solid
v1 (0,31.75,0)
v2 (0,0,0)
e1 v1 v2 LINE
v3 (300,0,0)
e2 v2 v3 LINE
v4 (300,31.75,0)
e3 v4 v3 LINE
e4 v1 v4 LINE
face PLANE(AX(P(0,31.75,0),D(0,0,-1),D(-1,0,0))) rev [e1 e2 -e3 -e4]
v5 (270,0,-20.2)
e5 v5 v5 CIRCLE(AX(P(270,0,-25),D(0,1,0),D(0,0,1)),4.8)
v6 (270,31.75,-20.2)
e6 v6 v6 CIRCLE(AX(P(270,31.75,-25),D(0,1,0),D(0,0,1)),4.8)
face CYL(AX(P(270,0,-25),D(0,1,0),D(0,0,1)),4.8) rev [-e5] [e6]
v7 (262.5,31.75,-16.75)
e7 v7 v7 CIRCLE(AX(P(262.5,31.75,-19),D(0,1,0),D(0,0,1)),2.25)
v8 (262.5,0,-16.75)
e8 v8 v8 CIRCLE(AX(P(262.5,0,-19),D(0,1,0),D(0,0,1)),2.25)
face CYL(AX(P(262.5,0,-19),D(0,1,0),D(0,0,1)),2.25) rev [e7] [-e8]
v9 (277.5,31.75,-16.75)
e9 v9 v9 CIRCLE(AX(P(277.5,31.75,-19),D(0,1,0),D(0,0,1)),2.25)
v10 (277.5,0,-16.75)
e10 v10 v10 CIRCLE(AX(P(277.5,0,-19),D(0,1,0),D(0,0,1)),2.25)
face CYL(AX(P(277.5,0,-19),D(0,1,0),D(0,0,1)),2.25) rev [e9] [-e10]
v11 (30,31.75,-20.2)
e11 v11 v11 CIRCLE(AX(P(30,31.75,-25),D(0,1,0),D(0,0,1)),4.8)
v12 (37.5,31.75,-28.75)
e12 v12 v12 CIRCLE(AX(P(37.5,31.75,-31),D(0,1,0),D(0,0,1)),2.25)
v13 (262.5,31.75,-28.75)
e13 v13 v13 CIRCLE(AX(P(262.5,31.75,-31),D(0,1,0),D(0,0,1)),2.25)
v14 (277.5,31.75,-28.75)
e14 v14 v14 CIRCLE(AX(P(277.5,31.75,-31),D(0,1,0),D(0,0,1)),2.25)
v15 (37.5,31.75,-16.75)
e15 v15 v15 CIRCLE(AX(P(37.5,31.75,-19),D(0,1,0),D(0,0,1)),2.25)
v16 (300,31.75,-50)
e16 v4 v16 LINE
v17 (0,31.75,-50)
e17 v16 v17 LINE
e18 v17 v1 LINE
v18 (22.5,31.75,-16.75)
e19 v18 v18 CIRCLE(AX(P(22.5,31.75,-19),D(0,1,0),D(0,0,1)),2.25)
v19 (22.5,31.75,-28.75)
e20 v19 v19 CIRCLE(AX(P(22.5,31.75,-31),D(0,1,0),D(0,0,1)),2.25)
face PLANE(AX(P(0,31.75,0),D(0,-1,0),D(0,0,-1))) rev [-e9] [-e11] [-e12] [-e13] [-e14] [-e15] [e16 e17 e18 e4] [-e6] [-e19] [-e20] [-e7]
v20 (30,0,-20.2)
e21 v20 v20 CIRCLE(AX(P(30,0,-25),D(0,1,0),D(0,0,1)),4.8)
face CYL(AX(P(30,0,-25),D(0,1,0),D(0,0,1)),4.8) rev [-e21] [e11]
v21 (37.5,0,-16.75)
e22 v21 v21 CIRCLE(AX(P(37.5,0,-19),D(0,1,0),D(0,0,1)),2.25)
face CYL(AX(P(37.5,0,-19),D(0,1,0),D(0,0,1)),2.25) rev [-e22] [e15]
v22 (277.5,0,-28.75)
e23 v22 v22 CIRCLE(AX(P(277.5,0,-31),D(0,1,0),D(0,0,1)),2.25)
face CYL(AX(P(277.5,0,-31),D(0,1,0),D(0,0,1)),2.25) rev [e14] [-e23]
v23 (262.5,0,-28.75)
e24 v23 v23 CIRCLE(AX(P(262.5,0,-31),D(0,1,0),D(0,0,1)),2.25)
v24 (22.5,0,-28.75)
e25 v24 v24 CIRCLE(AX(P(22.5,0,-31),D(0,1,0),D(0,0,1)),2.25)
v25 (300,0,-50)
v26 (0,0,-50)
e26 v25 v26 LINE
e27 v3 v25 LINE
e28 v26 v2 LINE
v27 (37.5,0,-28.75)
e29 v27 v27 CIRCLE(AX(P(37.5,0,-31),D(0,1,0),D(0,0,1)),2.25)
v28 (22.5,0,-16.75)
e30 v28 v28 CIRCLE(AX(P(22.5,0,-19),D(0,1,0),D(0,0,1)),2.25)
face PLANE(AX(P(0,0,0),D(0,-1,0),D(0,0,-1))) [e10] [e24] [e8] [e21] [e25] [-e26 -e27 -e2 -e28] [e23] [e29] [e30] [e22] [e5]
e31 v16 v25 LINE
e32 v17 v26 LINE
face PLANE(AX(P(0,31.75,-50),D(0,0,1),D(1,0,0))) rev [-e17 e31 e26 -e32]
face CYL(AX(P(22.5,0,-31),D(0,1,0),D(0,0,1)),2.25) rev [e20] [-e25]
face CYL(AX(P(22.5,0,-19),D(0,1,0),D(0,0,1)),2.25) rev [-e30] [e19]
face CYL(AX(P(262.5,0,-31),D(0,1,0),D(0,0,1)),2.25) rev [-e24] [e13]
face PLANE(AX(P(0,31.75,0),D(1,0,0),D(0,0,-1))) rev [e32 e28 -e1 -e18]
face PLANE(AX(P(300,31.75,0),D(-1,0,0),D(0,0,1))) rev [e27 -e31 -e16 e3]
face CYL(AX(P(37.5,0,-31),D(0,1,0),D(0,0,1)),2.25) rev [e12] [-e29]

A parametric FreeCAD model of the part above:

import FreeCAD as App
import Part
import Sketcher

V = App.Vector


def add_polygon(sketch, points):
    """Adds a closed chain of lines whose ends are joined by coincident constraints."""
    first, n = sketch.GeometryCount, len(points)
    for a, b in zip(points, points[1:] + points[:1]):
        sketch.addGeometry(Part.LineSegment(App.Vector(*a, 0), App.Vector(*b, 0)), False)
    for i in range(n):
        sketch.addConstraint(Sketcher.Constraint("Coincident", first + i, 2, first + (i + 1) % n, 1))

doc = App.newDocument("Part")
body = doc.addObject("PartDesign::Body", "Body")

# Sketch on XZ plane
sketch1 = body.newObject("Sketcher::SketchObject", "Sketch")
sketch1.AttachmentSupport = (doc.getObject("XZ_Plane"), [""])
sketch1.MapMode = "FlatFace"
add_polygon(sketch1, [(0, -50), (0, 0), (300, 0), (300, -50)])  # lines 0-3
sketch1.addConstraint([
    Sketcher.Constraint("Vertical", 0),
    Sketcher.Constraint("Horizontal", 1),
    Sketcher.Constraint("Vertical", 2),
    Sketcher.Constraint("Horizontal", 3),
    Sketcher.Constraint("Coincident", 0, 2, -1, 1),
    Sketcher.Constraint("DistanceX", 1, 1, 1, 2, 300.0),
    Sketcher.Constraint("DistanceY", 0, 1, 0, 2, 50.0),
])
pad1 = body.newObject("PartDesign::Pad", "Pad")
pad1.Profile = sketch1
pad1.Length = 31.75
pad1.Reversed = True

# Sketch on XZ plane
sketch2 = body.newObject("Sketcher::SketchObject", "Sketch001")
sketch2.AttachmentSupport = (doc.getObject("XZ_Plane"), [""])
sketch2.MapMode = "FlatFace"
sketch2.AttachmentOffset = App.Placement(V(0, 0, -31.75), App.Rotation())
sketch2.addGeometry([
    Part.Circle(V(30, -25, 0), V(0, 0, 1), 4.8),
    Part.Circle(V(270, -25, 0), V(0, 0, 1), 4.8),
    Part.Circle(V(22.5, -19, 0), V(0, 0, 1), 2.2),
    Part.Circle(V(277.5, -19, 0), V(0, 0, 1), 2.2),
], False)
sketch2.addConstraint([
    Sketcher.Constraint("Equal", 0, 1),
    Sketcher.Constraint("Equal", 2, 3),
    Sketcher.Constraint("Horizontal", 0, 3, 1, 3),
    Sketcher.Constraint("Horizontal", 2, 3, 3, 3),
    Sketcher.Constraint("Diameter", 0, 9.6),
    Sketcher.Constraint("Diameter", 2, 4.5),
    Sketcher.Constraint("DistanceX", -1, 1, 0, 3, 30.0),
    Sketcher.Constraint("DistanceY", 0, 3, -1, 1, 25.0),
    Sketcher.Constraint("DistanceX", -1, 1, 1, 3, 270.0),
    Sketcher.Constraint("DistanceY", 2, 3, -1, 1, 19.0),
    Sketcher.Constraint("DistanceX", 2, 3, 3, 3, 255.0),
    Sketcher.Constraint("DistanceX", -1, 1, 2, 3, 22.5),
])
pocket1 = body.newObject("PartDesign::Pocket", "Pocket")
pocket1.Profile = sketch2
pocket1.Length = 31.75
pocket1.Reversed = True

# Sketch on XZ plane
sketch3 = body.newObject("Sketcher::SketchObject", "Sketch002")
sketch3.AttachmentSupport = (doc.getObject("XZ_Plane"), [""])
sketch3.MapMode = "FlatFace"
sketch3.AttachmentOffset = App.Placement(V(0, 0, -31.75), App.Rotation())
sketch3.addGeometry([
    Part.Circle(V(37.5, -31, 0), V(0, 0, 1), 2.2),  # 0
    Part.Circle(V(37.5, -19, 0), V(0, 0, 1), 2.2),  # 1
    Part.Circle(V(22.5, -31, 0), V(0, 0, 1), 2.2),  # 2
    Part.Circle(V(277.5, -31, 0), V(0, 0, 1), 2.2),  # 3
    Part.Circle(V(262.5, -19, 0), V(0, 0, 1), 2.2),  # 4
    Part.Circle(V(262.5, -31, 0), V(0, 0, 1), 2.2),  # 5
], False)
sketch3.addConstraint([
    Sketcher.Constraint("Equal", 0, 1),
    Sketcher.Constraint("Equal", 1, 2),
    Sketcher.Constraint("Equal", 2, 3),
    Sketcher.Constraint("Equal", 3, 4),
    Sketcher.Constraint("Equal", 4, 5),
    Sketcher.Constraint("Horizontal", 0, 3, 2, 3),
    Sketcher.Constraint("Horizontal", 2, 3, 3, 3),
    Sketcher.Constraint("Horizontal", 1, 3, 4, 3),
    Sketcher.Constraint("Horizontal", 3, 3, 5, 3),
    Sketcher.Constraint("Vertical", 0, 3, 1, 3),
    Sketcher.Constraint("Vertical", 4, 3, 5, 3),
    Sketcher.Constraint("Diameter", 0, 4.5),
    Sketcher.Constraint("DistanceY", 0, 3, -1, 1, 31.0),
    Sketcher.Constraint("DistanceY", 1, 3, -1, 1, 19.0),
    Sketcher.Constraint("DistanceX", 2, 3, 0, 3, 15.0),
    Sketcher.Constraint("DistanceX", 0, 3, 3, 3, 240.0),
    Sketcher.Constraint("DistanceX", 4, 3, 3, 3, 15.0),
    Sketcher.Constraint("DistanceX", -1, 1, 0, 3, 37.5),
])
pocket2 = body.newObject("PartDesign::Pocket", "Pocket001")
pocket2.Profile = sketch3
pocket2.Length = 31.75
pocket2.Reversed = True

doc.recompute()
